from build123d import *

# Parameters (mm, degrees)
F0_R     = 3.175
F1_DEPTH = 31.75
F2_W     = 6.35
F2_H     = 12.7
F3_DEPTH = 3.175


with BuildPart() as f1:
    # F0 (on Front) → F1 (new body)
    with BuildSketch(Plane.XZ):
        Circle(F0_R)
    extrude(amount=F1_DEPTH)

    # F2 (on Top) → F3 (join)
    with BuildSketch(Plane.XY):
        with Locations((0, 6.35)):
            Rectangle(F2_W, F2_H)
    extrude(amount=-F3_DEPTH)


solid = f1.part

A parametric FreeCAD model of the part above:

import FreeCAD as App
import Part
import Sketcher
from FreeCAD import Vector
Q = App.Units.Quantity


def add_polygon(sketch, points):
    """Adds a closed chain of lines whose ends are joined by coincident constraints."""
    first, n = sketch.GeometryCount, len(points)
    for a, b in zip(points, points[1:] + points[:1]):
        sketch.addGeometry(Part.LineSegment(App.Vector(*a, 0), App.Vector(*b, 0)), False)
    for i in range(n):
        sketch.addConstraint(Sketcher.Constraint("Coincident", first + i, 2, first + (i + 1) % n, 1))

doc = App.newDocument("Part")
body = doc.addObject("PartDesign::Body", "Body")

sketch1 = body.newObject("Sketcher::SketchObject", "Sketch")
sketch1.AttachmentSupport = (doc.getObject("XZ_Plane"), [""])
sketch1.MapMode = "FlatFace"
sketch1.addGeometry(Part.Circle(Vector(0, 0, 0), Vector(0, 0, 1), 3.2), False)
sketch1.addConstraint([
    Sketcher.Constraint("Coincident", 0, 3, -1, 1),
    Sketcher.Constraint("Diameter", 0, Q("0.25 in")),
])
pad1 = body.newObject("PartDesign::Pad", "Pad")
pad1.Profile = sketch1
pad1.Length = Q("1.25 in")

sketch2 = body.newObject("Sketcher::SketchObject", "Sketch001")
sketch2.AttachmentSupport = (doc.getObject("XY_Plane"), [""])
sketch2.MapMode = "FlatFace"
add_polygon(sketch2, [(-3, 13), (-3, 0), (3, 0), (3, 13)])
sketch2.addConstraint([
    Sketcher.Constraint("Vertical", 0),
    Sketcher.Constraint("Horizontal", 1),
    Sketcher.Constraint("Vertical", 2),
    Sketcher.Constraint("Horizontal", 3),
    Sketcher.Constraint("Symmetric", 0, 2, 1, 2, -1, 1),
    Sketcher.Constraint("DistanceY", 0, 2, 0, 1, Q("0.5 in")),
    Sketcher.Constraint("DistanceX", 1, 1, 1, 2, Q("0.25 in")),
])
pad2 = body.newObject("PartDesign::Pad", "Pad001")
pad2.Profile = sketch2
pad2.Length = Q("0.125 in")
pad2.Reversed = True

doc.recompute()
